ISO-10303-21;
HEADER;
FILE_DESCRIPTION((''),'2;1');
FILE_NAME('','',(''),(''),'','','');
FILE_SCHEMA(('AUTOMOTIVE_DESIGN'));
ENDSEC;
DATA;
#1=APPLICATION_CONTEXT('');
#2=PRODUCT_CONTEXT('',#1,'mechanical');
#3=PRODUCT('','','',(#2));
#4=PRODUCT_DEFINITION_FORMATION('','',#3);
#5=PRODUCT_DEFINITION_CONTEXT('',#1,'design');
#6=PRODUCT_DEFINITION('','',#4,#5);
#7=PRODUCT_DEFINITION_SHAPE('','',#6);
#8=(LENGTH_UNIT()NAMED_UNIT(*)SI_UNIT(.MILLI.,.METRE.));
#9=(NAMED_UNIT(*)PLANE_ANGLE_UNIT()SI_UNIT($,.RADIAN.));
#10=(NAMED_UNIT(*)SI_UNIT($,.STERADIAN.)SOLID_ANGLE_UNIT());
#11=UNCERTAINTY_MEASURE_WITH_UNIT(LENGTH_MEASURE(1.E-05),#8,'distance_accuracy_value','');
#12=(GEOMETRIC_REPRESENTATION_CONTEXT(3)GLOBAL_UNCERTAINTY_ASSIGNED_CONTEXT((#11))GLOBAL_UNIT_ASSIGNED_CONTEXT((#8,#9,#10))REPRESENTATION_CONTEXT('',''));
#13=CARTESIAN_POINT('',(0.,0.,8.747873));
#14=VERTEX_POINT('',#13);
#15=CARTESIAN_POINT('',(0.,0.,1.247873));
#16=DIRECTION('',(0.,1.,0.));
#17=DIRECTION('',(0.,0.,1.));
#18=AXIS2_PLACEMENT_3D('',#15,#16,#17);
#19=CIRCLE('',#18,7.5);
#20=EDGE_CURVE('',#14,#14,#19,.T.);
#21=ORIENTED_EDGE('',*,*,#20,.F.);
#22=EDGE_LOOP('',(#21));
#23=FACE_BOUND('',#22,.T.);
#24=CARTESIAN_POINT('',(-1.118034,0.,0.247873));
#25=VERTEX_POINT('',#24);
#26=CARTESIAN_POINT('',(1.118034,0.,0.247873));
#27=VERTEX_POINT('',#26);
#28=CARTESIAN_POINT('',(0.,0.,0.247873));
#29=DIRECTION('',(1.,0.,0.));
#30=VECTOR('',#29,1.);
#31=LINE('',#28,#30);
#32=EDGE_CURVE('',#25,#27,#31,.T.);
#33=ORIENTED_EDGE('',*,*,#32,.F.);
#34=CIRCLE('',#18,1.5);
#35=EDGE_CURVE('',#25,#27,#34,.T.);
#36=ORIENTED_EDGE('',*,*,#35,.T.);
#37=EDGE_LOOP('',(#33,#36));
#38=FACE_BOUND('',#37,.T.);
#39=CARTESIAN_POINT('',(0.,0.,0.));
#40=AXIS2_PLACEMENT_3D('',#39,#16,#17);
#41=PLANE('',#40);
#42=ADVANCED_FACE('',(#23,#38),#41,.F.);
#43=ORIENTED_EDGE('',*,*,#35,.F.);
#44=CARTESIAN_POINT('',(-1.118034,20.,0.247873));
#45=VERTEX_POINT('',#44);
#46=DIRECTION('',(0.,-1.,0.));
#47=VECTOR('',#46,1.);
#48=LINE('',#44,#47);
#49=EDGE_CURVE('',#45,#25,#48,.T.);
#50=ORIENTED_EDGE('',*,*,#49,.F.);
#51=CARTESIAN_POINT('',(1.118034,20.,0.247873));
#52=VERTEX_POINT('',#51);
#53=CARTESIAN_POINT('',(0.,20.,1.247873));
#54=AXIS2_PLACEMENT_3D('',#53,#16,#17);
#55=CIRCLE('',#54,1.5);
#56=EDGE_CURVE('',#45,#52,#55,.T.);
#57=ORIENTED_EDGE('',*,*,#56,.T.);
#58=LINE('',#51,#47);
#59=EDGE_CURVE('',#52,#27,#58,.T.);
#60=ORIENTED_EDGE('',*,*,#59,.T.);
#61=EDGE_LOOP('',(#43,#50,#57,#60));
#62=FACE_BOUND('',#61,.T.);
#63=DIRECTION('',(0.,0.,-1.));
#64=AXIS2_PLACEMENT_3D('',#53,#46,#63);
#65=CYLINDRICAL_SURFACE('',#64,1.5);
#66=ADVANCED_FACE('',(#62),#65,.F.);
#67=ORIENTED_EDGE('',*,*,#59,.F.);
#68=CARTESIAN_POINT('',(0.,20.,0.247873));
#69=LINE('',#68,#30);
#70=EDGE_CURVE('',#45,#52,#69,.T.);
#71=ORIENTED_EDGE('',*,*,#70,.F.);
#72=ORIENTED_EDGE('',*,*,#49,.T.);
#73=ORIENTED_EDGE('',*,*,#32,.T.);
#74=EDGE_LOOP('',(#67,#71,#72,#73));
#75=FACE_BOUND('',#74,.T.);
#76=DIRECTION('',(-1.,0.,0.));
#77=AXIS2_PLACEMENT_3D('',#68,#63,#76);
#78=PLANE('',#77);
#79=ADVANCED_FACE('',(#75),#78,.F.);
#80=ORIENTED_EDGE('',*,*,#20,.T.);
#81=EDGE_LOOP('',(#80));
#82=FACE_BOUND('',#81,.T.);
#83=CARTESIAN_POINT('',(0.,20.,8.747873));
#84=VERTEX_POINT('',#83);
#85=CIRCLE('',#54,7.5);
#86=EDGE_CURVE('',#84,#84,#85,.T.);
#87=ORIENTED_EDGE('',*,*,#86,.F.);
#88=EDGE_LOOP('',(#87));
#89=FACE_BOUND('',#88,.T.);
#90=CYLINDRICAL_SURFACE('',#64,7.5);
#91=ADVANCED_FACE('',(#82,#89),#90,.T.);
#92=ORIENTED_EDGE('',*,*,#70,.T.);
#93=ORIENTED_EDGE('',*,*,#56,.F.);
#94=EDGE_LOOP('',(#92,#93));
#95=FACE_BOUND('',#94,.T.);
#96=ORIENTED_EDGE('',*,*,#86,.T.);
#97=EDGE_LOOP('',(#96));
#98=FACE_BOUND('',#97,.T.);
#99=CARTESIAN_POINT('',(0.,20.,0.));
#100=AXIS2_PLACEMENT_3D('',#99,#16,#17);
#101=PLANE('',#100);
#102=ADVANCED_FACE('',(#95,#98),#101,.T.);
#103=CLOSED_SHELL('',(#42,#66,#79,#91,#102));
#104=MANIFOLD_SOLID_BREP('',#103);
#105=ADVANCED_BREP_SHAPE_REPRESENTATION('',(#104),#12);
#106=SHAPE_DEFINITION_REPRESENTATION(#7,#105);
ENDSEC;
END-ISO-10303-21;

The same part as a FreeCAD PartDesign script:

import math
import FreeCAD as App
import Part
import Sketcher

V = App.Vector
Q = App.Units.Quantity

doc = App.newDocument("Part")
params = doc.addObject("Spreadsheet::Sheet", "Params")
for row, (alias, value) in enumerate([
    ("sketch1_diameter", "15 mm"),
    ("sketch1_radius", "1.5 mm"),
    ("pad1_length", "20 mm"),
], start=1):
    params.set(f"A{row}", alias)
    params.set(f"B{row}", "=" + value)
    params.setAlias(f"B{row}", alias)

body = doc.addObject("PartDesign::Body", "Body")

# Sketch on XZ plane
sketch1 = body.newObject("Sketcher::SketchObject", "Sketch")
sketch1.AttachmentSupport = (doc.getObject("XZ_Plane"), [""])
sketch1.MapMode = "FlatFace"
sketch1.addGeometry(Part.Circle(V(0, 1.2, 0), V(0, 0, 1), 7.5), False)
sketch1.addGeometry(Part.ArcOfCircle(Part.Circle(V(0, 1.2, 0), V(0, 0, 1), 1.5), math.radians(-42), math.radians(222)), False)
sketch1.addGeometry(Part.LineSegment(V(-1.1, 0.2, 0), V(1.1, 0.2, 0)), False)
sketch1.addConstraint(Sketcher.Constraint("Coincident", 1, 1, 2, 2))
sketch1.addConstraint(Sketcher.Constraint("Coincident", 2, 1, 1, 2))
sketch1.addConstraint(Sketcher.Constraint("Horizontal", 2))
sketch1.addConstraint(Sketcher.Constraint("Coincident", 1, 3, 0, 3))
sketch1.addConstraint(Sketcher.Constraint("PointOnObject", 0, 3, -2))
sketch1.addConstraint(Sketcher.Constraint("Diameter", 0, Q("15 mm")))
sketch1.addConstraint(Sketcher.Constraint("Radius", 1, Q("1.5 mm")))
sketch1.addConstraint(Sketcher.Constraint("DistanceY", 1, 1, 0, 3, Q("1 mm")))
sketch1.addConstraint(Sketcher.Constraint("DistanceY", -1, 1, 0, 3, Q("1.247873 mm")))
sketch1.setExpression("Constraints[5]", "Params.sketch1_diameter")
sketch1.setExpression("Constraints[6]", "Params.sketch1_radius")
pad1 = body.newObject("PartDesign::Pad", "Pad")
pad1.Profile = sketch1
pad1.setExpression("Length", "Params.pad1_length")
pad1.Reversed = True

doc.recompute()
